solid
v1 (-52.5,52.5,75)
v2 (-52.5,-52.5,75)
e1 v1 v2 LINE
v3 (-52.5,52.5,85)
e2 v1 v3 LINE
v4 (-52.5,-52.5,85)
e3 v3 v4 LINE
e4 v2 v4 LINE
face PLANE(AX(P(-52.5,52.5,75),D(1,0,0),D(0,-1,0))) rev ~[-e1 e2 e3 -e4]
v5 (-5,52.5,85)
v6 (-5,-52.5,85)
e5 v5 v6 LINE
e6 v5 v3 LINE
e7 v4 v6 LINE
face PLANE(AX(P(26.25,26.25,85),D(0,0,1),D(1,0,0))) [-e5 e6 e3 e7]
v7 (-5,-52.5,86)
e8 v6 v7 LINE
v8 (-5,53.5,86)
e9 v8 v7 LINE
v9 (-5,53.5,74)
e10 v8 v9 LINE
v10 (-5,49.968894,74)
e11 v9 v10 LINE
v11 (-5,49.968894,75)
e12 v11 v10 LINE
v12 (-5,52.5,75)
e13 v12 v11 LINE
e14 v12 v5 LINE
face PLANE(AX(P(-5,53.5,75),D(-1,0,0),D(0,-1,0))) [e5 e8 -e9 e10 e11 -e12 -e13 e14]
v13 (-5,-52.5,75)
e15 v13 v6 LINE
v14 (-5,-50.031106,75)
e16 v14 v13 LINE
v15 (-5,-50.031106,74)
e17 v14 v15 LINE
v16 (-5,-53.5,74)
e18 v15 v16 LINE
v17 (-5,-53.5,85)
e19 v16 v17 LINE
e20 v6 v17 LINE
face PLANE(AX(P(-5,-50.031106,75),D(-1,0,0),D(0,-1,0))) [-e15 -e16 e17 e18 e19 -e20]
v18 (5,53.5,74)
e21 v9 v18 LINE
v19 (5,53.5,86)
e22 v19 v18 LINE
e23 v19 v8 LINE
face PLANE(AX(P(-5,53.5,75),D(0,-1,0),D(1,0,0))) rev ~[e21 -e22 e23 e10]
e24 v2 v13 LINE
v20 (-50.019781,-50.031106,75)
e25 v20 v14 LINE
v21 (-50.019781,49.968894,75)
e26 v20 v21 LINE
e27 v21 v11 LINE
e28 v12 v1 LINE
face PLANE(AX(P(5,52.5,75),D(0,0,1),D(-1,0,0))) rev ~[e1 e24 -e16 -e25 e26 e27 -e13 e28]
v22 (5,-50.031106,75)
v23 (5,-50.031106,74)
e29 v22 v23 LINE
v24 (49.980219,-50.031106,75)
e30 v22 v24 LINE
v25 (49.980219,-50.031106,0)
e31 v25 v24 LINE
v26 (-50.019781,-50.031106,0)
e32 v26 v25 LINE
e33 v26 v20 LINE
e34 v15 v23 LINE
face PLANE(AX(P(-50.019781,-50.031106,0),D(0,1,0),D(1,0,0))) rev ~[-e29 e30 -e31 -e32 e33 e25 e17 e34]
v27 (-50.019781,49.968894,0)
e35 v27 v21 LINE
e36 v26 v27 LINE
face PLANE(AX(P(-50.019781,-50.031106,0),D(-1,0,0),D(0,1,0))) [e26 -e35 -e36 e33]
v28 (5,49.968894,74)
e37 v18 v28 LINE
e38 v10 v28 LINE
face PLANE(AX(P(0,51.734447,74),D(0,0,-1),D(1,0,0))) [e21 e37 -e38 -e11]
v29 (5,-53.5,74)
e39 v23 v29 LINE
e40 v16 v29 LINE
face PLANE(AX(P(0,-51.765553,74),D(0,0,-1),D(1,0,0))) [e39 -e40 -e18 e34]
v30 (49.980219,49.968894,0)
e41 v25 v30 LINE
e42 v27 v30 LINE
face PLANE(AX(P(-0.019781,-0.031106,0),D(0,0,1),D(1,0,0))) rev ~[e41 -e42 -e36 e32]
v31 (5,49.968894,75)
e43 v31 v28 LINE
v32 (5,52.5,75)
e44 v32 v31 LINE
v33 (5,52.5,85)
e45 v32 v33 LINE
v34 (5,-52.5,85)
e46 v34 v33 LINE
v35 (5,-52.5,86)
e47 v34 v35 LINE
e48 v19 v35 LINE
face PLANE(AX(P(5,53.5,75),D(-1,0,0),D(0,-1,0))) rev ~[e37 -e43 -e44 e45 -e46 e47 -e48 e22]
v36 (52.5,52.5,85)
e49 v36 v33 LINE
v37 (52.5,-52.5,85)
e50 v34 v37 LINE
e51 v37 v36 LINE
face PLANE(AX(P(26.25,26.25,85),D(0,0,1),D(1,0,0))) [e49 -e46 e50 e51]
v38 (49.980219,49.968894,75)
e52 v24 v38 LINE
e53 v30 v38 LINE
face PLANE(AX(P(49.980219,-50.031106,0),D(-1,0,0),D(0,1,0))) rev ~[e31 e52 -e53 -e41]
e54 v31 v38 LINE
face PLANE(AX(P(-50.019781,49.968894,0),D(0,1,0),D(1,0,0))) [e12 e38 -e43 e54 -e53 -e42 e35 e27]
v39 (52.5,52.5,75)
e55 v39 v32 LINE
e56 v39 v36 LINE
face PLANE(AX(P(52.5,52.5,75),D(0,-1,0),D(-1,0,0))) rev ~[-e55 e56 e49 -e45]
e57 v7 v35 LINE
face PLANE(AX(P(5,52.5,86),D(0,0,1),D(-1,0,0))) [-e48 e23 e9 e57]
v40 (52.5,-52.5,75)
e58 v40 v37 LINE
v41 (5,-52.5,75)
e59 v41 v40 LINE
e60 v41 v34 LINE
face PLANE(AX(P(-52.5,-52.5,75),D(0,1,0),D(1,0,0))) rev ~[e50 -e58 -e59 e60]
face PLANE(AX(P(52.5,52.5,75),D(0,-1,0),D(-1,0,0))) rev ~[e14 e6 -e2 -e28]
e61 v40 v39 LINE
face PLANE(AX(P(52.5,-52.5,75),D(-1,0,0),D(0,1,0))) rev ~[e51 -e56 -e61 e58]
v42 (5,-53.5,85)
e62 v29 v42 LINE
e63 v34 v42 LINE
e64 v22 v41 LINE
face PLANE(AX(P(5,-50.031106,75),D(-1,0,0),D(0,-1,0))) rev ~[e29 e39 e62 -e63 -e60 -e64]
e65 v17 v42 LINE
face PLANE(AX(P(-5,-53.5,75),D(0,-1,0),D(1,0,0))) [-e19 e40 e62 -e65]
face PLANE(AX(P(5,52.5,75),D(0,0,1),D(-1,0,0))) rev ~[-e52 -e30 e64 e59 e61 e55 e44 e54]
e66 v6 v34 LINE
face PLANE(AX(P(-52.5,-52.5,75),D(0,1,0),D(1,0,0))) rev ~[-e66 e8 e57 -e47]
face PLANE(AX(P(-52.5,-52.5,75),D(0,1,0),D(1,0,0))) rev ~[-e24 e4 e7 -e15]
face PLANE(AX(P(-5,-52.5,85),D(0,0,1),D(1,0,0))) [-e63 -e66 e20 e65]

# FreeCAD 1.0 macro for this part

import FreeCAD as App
import Part
import Sketcher
Q = App.Units.Quantity

doc = App.newDocument("Part")
body = doc.addObject("PartDesign::Body", "Body")

sketch1 = body.newObject("Sketcher::SketchObject", "Sketch")
sketch1.AttachmentSupport = (doc.getObject("XY_Plane"), [""])
sketch1.MapMode = "FlatFace"
sketch1.addGeometry(Part.LineSegment(App.Vector(-50.019781, 49.968894, 0), App.Vector(-50.019781, -50.031106, 0)), False)
sketch1.addGeometry(Part.LineSegment(App.Vector(-50.019781, -50.031106, 0), App.Vector(49.980219, -50.031106, 0)), False)
sketch1.addGeometry(Part.LineSegment(App.Vector(49.980219, -50.031106, 0), App.Vector(49.980219, 49.968894, 0)), False)
sketch1.addGeometry(Part.LineSegment(App.Vector(49.980219, 49.968894, 0), App.Vector(-50.019781, 49.968894, 0)), False)
sketch1.addConstraint(Sketcher.Constraint("Coincident", 0, 2, 1, 1))
sketch1.addConstraint(Sketcher.Constraint("Coincident", 1, 2, 2, 1))
sketch1.addConstraint(Sketcher.Constraint("Coincident", 2, 2, 3, 1))
sketch1.addConstraint(Sketcher.Constraint("Coincident", 3, 2, 0, 1))
sketch1.addConstraint(Sketcher.Constraint("Vertical", 0))
sketch1.addConstraint(Sketcher.Constraint("Horizontal", 1))
sketch1.addConstraint(Sketcher.Constraint("Vertical", 2))
sketch1.addConstraint(Sketcher.Constraint("Horizontal", 3))
sketch1.addConstraint(Sketcher.Constraint("Equal", 3, 0))
sketch1.addConstraint(Sketcher.Constraint("DistanceX", 1, 1, 1, 2, Q("100 mm")))
sketch1.addConstraint(Sketcher.Constraint("DistanceX", 0, 2, -1, 1, Q("50.019781 mm")))
sketch1.addConstraint(Sketcher.Constraint("DistanceY", 0, 2, -1, 1, Q("50.031106 mm")))
pad1 = body.newObject("PartDesign::Pad", "Pad")
pad1.Profile = sketch1
pad1.Length = 75

sketch2 = body.newObject("Sketcher::SketchObject", "Sketch001")
sketch2.AttachmentSupport = (doc.getObject("XY_Plane"), [""])
sketch2.MapMode = "FlatFace"
sketch2.AttachmentOffset = App.Placement(App.Vector(0, 0, 75), App.Rotation())
sketch2.addGeometry(Part.LineSegment(App.Vector(52.5, 52.5, 0), App.Vector(-52.5, 52.5, 0)), False)
sketch2.addGeometry(Part.LineSegment(App.Vector(-52.5, 52.5, 0), App.Vector(-52.5, -52.5, 0)), False)
sketch2.addGeometry(Part.LineSegment(App.Vector(-52.5, -52.5, 0), App.Vector(52.5, -52.5, 0)), False)
sketch2.addGeometry(Part.LineSegment(App.Vector(52.5, -52.5, 0), App.Vector(52.5, 52.5, 0)), False)
sketch2.addConstraint(Sketcher.Constraint("Coincident", 0, 2, 1, 1))
sketch2.addConstraint(Sketcher.Constraint("Coincident", 1, 2, 2, 1))
sketch2.addConstraint(Sketcher.Constraint("Coincident", 2, 2, 3, 1))
sketch2.addConstraint(Sketcher.Constraint("Coincident", 3, 2, 0, 1))
sketch2.addConstraint(Sketcher.Constraint("Horizontal", 0))
sketch2.addConstraint(Sketcher.Constraint("Vertical", 1))
sketch2.addConstraint(Sketcher.Constraint("Horizontal", 2))
sketch2.addConstraint(Sketcher.Constraint("Vertical", 3))
sketch2.addConstraint(Sketcher.Constraint("Symmetric", 0, 2, 2, 2, -1, 1))
sketch2.addConstraint(Sketcher.Constraint("Equal", 2, 1))
sketch2.addConstraint(Sketcher.Constraint("DistanceX", 0, 2, 0, 1, Q("105 mm")))
pad2 = body.newObject("PartDesign::Pad", "Pad001")
pad2.Profile = sketch2
pad2.Length = 10

sketch3 = body.newObject("Sketcher::SketchObject", "Sketch002")
sketch3.AttachmentSupport = (doc.getObject("XY_Plane"), [""])
sketch3.MapMode = "FlatFace"
sketch3.AttachmentOffset = App.Placement(App.Vector(0, 0, 85), App.Rotation())
sketch3.addGeometry(Part.LineSegment(App.Vector(-5, -52.5, 0), App.Vector(5, -52.5, 0)), False)
sketch3.addGeometry(Part.LineSegment(App.Vector(5, -52.5, 0), App.Vector(5, 52.5, 0)), False)
sketch3.addGeometry(Part.LineSegment(App.Vector(5, 52.5, 0), App.Vector(-5, 52.5, 0)), False)
sketch3.addGeometry(Part.LineSegment(App.Vector(-5, 52.5, 0), App.Vector(-5, -52.5, 0)), False)
sketch3.addConstraint(Sketcher.Constraint("Coincident", 0, 2, 1, 1))
sketch3.addConstraint(Sketcher.Constraint("Coincident", 1, 2, 2, 1))
sketch3.addConstraint(Sketcher.Constraint("Coincident", 2, 2, 3, 1))
sketch3.addConstraint(Sketcher.Constraint("Coincident", 3, 2, 0, 1))
sketch3.addConstraint(Sketcher.Constraint("Horizontal", 0))
sketch3.addConstraint(Sketcher.Constraint("Vertical", 1))
sketch3.addConstraint(Sketcher.Constraint("Horizontal", 2))
sketch3.addConstraint(Sketcher.Constraint("Vertical", 3))
sketch3.addConstraint(Sketcher.Constraint("Symmetric", 0, 2, 2, 2, -1, 1))
sketch3.addConstraint(Sketcher.Constraint("DistanceX", 0, 1, 0, 2, Q("10 mm")))
sketch3.addConstraint(Sketcher.Constraint("DistanceY", 1, 1, 1, 2, Q("105 mm")))
pad3 = body.newObject("PartDesign::Pad", "Pad002")
pad3.Profile = sketch3
pad3.Length = 1

sketch4 = body.newObject("Sketcher::SketchObject", "Sketch003")
sketch4.AttachmentSupport = (doc.getObject("XZ_Plane"), [""])
sketch4.MapMode = "FlatFace"
sketch4.AttachmentOffset = App.Placement(App.Vector(0, 0, 52.5), App.Rotation())
sketch4.addGeometry(Part.LineSegment(App.Vector(-5, 85, 0), App.Vector(-5, 75, 0)), False)
sketch4.addGeometry(Part.LineSegment(App.Vector(-5, 75, 0), App.Vector(5, 75, 0)), False)
sketch4.addGeometry(Part.LineSegment(App.Vector(5, 75, 0), App.Vector(5, 85, 0)), False)
sketch4.addGeometry(Part.LineSegment(App.Vector(5, 85, 0), App.Vector(-5, 85, 0)), False)
sketch4.addConstraint(Sketcher.Constraint("Coincident", 0, 2, 1, 1))
sketch4.addConstraint(Sketcher.Constraint("Coincident", 1, 2, 2, 1))
sketch4.addConstraint(Sketcher.Constraint("Coincident", 2, 2, 3, 1))
sketch4.addConstraint(Sketcher.Constraint("Coincident", 3, 2, 0, 1))
sketch4.addConstraint(Sketcher.Constraint("Vertical", 0))
sketch4.addConstraint(Sketcher.Constraint("Horizontal", 1))
sketch4.addConstraint(Sketcher.Constraint("Vertical", 2))
sketch4.addConstraint(Sketcher.Constraint("Horizontal", 3))
sketch4.addConstraint(Sketcher.Constraint("Equal", 3, 0))
sketch4.addConstraint(Sketcher.Constraint("DistanceX", 1, 1, 1, 2, Q("10 mm")))
sketch4.addConstraint(Sketcher.Constraint("DistanceX", 0, 2, -1, 1, Q("5 mm")))
sketch4.addConstraint(Sketcher.Constraint("DistanceY", -1, 1, 0, 2, Q("75 mm")))
pad4 = body.newObject("PartDesign::Pad", "Pad003")
pad4.Profile = sketch4
pad4.Length = 1

sketch5 = body.newObject("Sketcher::SketchObject", "Sketch004")
sketch5.AttachmentSupport = (doc.getObject("XZ_Plane"), [""])
sketch5.MapMode = "FlatFace"
sketch5.AttachmentOffset = App.Placement(App.Vector(0, 0, -52.5), App.Rotation())
sketch5.addGeometry(Part.LineSegment(App.Vector(5, 86, 0), App.Vector(5, 75, 0)), False)
sketch5.addGeometry(Part.LineSegment(App.Vector(5, 75, 0), App.Vector(-5, 75, 0)), False)
sketch5.addGeometry(Part.LineSegment(App.Vector(-5, 75, 0), App.Vector(-5, 86, 0)), False)
sketch5.addGeometry(Part.LineSegment(App.Vector(-5, 86, 0), App.Vector(5, 86, 0)), False)
sketch5.addConstraint(Sketcher.Constraint("Coincident", 0, 2, 1, 1))
sketch5.addConstraint(Sketcher.Constraint("Coincident", 1, 2, 2, 1))
sketch5.addConstraint(Sketcher.Constraint("Coincident", 2, 2, 3, 1))
sketch5.addConstraint(Sketcher.Constraint("Coincident", 3, 2, 0, 1))
sketch5.addConstraint(Sketcher.Constraint("Vertical", 0))
sketch5.addConstraint(Sketcher.Constraint("Horizontal", 1))
sketch5.addConstraint(Sketcher.Constraint("Vertical", 2))
sketch5.addConstraint(Sketcher.Constraint("Horizontal", 3))
sketch5.addConstraint(Sketcher.Constraint("DistanceX", 1, 2, 1, 1, Q("10 mm")))
sketch5.addConstraint(Sketcher.Constraint("DistanceY", 0, 2, 0, 1, Q("11 mm")))
sketch5.addConstraint(Sketcher.Constraint("DistanceX", -1, 1, 0, 2, Q("5 mm")))
sketch5.addConstraint(Sketcher.Constraint("DistanceY", -1, 1, 0, 2, Q("75 mm")))
pad5 = body.newObject("PartDesign::Pad", "Pad004")
pad5.Profile = sketch5
pad5.Length = 1
pad5.Reversed = True

sketch6 = body.newObject("Sketcher::SketchObject", "Sketch005")
sketch6.AttachmentSupport = (doc.getObject("XY_Plane"), [""])
sketch6.MapMode = "FlatFace"
sketch6.AttachmentOffset = App.Placement(App.Vector(0, 0, 75), App.Rotation())
sketch6.addGeometry(Part.LineSegment(App.Vector(-5, -53.5, 0), App.Vector(-5, -50.031106, 0)), False)
sketch6.addGeometry(Part.LineSegment(App.Vector(-5, -50.031106, 0), App.Vector(5, -50.031106, 0)), False)
sketch6.addGeometry(Part.LineSegment(App.Vector(5, -50.031106, 0), App.Vector(5, -53.5, 0)), False)
sketch6.addGeometry(Part.LineSegment(App.Vector(5, -53.5, 0), App.Vector(-5, -53.5, 0)), False)
sketch6.addConstraint(Sketcher.Constraint("Coincident", 0, 2, 1, 1))
sketch6.addConstraint(Sketcher.Constraint("Coincident", 1, 2, 2, 1))
sketch6.addConstraint(Sketcher.Constraint("Coincident", 2, 2, 3, 1))
sketch6.addConstraint(Sketcher.Constraint("Coincident", 3, 2, 0, 1))
sketch6.addConstraint(Sketcher.Constraint("Vertical", 0))
sketch6.addConstraint(Sketcher.Constraint("Horizontal", 1))
sketch6.addConstraint(Sketcher.Constraint("Vertical", 2))
sketch6.addConstraint(Sketcher.Constraint("Horizontal", 3))
sketch6.addConstraint(Sketcher.Constraint("DistanceX", 1, 1, 1, 2, Q("10 mm")))
sketch6.addConstraint(Sketcher.Constraint("DistanceX", 0, 2, -1, 1, Q("5 mm")))
sketch6.addConstraint(Sketcher.Constraint("DistanceY", 2, 2, -1, 1, Q("53.5 mm")))
sketch6.addConstraint(Sketcher.Constraint("DistanceY", 0, 1, 0, 2, Q("3.468894 mm")))
pad6 = body.newObject("PartDesign::Pad", "Pad005")
pad6.Profile = sketch6
pad6.Length = 1
pad6.Reversed = True

sketch7 = body.newObject("Sketcher::SketchObject", "Sketch006")
sketch7.AttachmentSupport = (doc.getObject("XY_Plane"), [""])
sketch7.MapMode = "FlatFace"
sketch7.AttachmentOffset = App.Placement(App.Vector(0, 0, 75), App.Rotation())
sketch7.addGeometry(Part.LineSegment(App.Vector(-5, 49.968894, 0), App.Vector(-5, 53.5, 0)), False)
sketch7.addGeometry(Part.LineSegment(App.Vector(-5, 53.5, 0), App.Vector(5, 53.5, 0)), False)
sketch7.addGeometry(Part.LineSegment(App.Vector(5, 53.5, 0), App.Vector(5, 49.968894, 0)), False)
sketch7.addGeometry(Part.LineSegment(App.Vector(5, 49.968894, 0), App.Vector(-5, 49.968894, 0)), False)
sketch7.addConstraint(Sketcher.Constraint("Coincident", 0, 2, 1, 1))
sketch7.addConstraint(Sketcher.Constraint("Coincident", 1, 2, 2, 1))
sketch7.addConstraint(Sketcher.Constraint("Coincident", 2, 2, 3, 1))
sketch7.addConstraint(Sketcher.Constraint("Coincident", 3, 2, 0, 1))
sketch7.addConstraint(Sketcher.Constraint("Vertical", 0))
sketch7.addConstraint(Sketcher.Constraint("Horizontal", 1))
sketch7.addConstraint(Sketcher.Constraint("Vertical", 2))
sketch7.addConstraint(Sketcher.Constraint("Horizontal", 3))
sketch7.addConstraint(Sketcher.Constraint("DistanceX", 1, 1, 1, 2, Q("10 mm")))
sketch7.addConstraint(Sketcher.Constraint("DistanceX", 0, 2, -1, 1, Q("5 mm")))
sketch7.addConstraint(Sketcher.Constraint("DistanceY", -1, 1, 0, 2, Q("53.5 mm")))
sketch7.addConstraint(Sketcher.Constraint("DistanceY", 0, 1, 0, 2, Q("3.531106 mm")))
pad7 = body.newObject("PartDesign::Pad", "Pad006")
pad7.Profile = sketch7
pad7.Length = 1
pad7.Reversed = True

doc.recompute()
